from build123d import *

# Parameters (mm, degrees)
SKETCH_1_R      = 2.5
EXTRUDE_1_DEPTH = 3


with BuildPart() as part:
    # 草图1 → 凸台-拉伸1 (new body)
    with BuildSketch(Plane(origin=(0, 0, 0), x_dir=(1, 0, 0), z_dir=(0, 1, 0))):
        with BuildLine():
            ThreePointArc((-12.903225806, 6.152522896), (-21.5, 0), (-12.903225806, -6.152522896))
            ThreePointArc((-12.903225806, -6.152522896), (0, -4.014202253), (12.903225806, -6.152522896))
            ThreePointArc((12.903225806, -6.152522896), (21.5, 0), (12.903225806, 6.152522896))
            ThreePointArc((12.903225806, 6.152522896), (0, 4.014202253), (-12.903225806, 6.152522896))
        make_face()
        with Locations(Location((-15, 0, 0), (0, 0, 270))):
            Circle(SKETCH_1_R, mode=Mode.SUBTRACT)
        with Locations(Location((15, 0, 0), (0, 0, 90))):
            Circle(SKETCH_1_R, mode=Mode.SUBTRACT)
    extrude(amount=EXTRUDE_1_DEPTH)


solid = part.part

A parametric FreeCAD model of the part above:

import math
import FreeCAD as App
import Part
import Sketcher

V = App.Vector
Q = App.Units.Quantity

doc = App.newDocument("Part")
params = doc.addObject("Spreadsheet::Sheet", "Params")
for row, (alias, value) in enumerate([
    ("sketch1_diameter", "5 mm"),
    ("sketch1_radius", "40 mm"),
    ("sketch1_radius2", "6.5 mm"),
    ("pad1_length", "3 mm"),
], start=1):
    params.set(f"A{row}", alias)
    params.set(f"B{row}", "=" + value)
    params.setAlias(f"B{row}", alias)

body = doc.addObject("PartDesign::Body", "Body")

sketch1 = body.newObject("Sketcher::SketchObject", "Sketch")
sketch1.AttachmentSupport = (doc.getObject("XZ_Plane"), [""])
sketch1.MapMode = "FlatFace"
sketch1.addGeometry([
    Part.ArcOfCircle(Part.Circle(V(-15, 0, 0), V(0, 0, 1), 6.5), math.radians(71), math.radians(289)),
    Part.ArcOfCircle(Part.Circle(V(0, 44, 0), V(0, 0, 1), 40), math.radians(-109), math.radians(-71)),
    Part.ArcOfCircle(Part.Circle(V(15, 0, 0), V(0, 0, 1), 6.5), math.radians(-109), math.radians(109)),
    Part.ArcOfCircle(Part.Circle(V(0, -44, 0), V(0, 0, 1), 40), math.radians(71), math.radians(109)),
    Part.Circle(V(-15, 0, 0), V(0, 0, 1), 2.5),
    Part.Circle(V(15, 0, 0), V(0, 0, 1), 2.5),
], False)
sketch1.addConstraint([
    Sketcher.Constraint("Tangent", 0, 1, 1, 1),
    Sketcher.Constraint("Tangent", 1, 2, 2, 2),
    Sketcher.Constraint("Tangent", 2, 1, 3, 1),
    Sketcher.Constraint("Tangent", 3, 2, 0, 2),
    Sketcher.Constraint("Coincident", 4, 3, 0, 3),
    Sketcher.Constraint("Coincident", 5, 3, 2, 3),
    Sketcher.Constraint("Equal", 0, 2),
    Sketcher.Constraint("Equal", 1, 3),
    Sketcher.Constraint("Equal", 4, 5),
    Sketcher.Constraint("Symmetric", 0, 3, 2, 3, -1, 1),
    Sketcher.Constraint("PointOnObject", 0, 3, -1),
    Sketcher.Constraint("Diameter", 4, Q("5 mm")),
    Sketcher.Constraint("Radius", 1, Q("40 mm")),
    Sketcher.Constraint("Radius", 0, Q("6.5 mm")),
    Sketcher.Constraint("DistanceX", 0, 3, -1, 1, Q("15 mm")),
])
sketch1.setExpression("Constraints[11]", "Params.sketch1_diameter")
sketch1.setExpression("Constraints[12]", "Params.sketch1_radius")
sketch1.setExpression("Constraints[13]", "Params.sketch1_radius2")
pad1 = body.newObject("PartDesign::Pad", "Pad")
pad1.Profile = sketch1
pad1.setExpression("Length", "Params.pad1_length")
pad1.Reversed = True

doc.recompute()
